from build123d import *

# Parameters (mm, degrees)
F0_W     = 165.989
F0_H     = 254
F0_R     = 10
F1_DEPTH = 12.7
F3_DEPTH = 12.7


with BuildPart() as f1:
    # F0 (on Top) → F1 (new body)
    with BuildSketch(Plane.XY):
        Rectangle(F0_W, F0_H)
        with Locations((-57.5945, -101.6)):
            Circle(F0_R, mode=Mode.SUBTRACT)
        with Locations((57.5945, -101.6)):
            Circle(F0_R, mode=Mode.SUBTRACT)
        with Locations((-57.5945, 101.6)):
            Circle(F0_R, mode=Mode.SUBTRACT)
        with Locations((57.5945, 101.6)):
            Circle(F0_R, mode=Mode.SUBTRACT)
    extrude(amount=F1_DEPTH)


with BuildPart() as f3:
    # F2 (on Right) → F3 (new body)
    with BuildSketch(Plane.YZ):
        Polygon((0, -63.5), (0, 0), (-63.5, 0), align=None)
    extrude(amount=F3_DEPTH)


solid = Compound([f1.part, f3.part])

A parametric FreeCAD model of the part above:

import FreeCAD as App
import Part
import Sketcher
from FreeCAD import Vector
Q = App.Units.Quantity

doc = App.newDocument("Part")
params = doc.addObject("Spreadsheet::Sheet", "Params")
for row, (alias, value) in enumerate([
    ("sketch1_height", "10 in"),
    ("sketch1_width", "6.535 in"),
    ("pad1_length", "0.5 in"),
    ("sketch2_width", "2.5 in"),
    ("pad2_length", "0.5 in"),
], start=1):
    params.set(f"A{row}", alias)
    params.set(f"B{row}", "=" + value)
    params.setAlias(f"B{row}", alias)

body = doc.addObject("PartDesign::Body", "Body")

# Sketch on XY plane
sketch1 = doc.addObject("Sketcher::SketchObject", "Sketch")
body.addObject(sketch1)
sketch1.AttachmentSupport = (doc.XY_Plane, [""])
sketch1.MapMode = "FlatFace"
sketch1.addGeometry([
    Part.LineSegment(Vector(-83, 127, 0), Vector(-83, -127, 0)),  # 0
    Part.LineSegment(Vector(-83, -127, 0), Vector(83, -127, 0)),  # 1
    Part.LineSegment(Vector(83, -127, 0), Vector(83, 127, 0)),  # 2
    Part.LineSegment(Vector(83, 127, 0), Vector(-83, 127, 0)),  # 3
    Part.Circle(Vector(-58, -102, 0), Vector(0, 0, 1), 10),  # 4
    Part.Circle(Vector(58, -102, 0), Vector(0, 0, 1), 10),  # 5
    Part.Circle(Vector(-58, 102, 0), Vector(0, 0, 1), 10),  # 6
    Part.Circle(Vector(58, 102, 0), Vector(0, 0, 1), 10),  # 7
], False)
sketch1.addConstraint([
    Sketcher.Constraint("Coincident", 0, 2, 1, 1),
    Sketcher.Constraint("Coincident", 1, 2, 2, 1),
    Sketcher.Constraint("Coincident", 2, 2, 3, 1),
    Sketcher.Constraint("Coincident", 3, 2, 0, 1),
    Sketcher.Constraint("Vertical", 0),
    Sketcher.Constraint("Horizontal", 1),
    Sketcher.Constraint("Vertical", 2),
    Sketcher.Constraint("Horizontal", 3),
    Sketcher.Constraint("Equal", 4, 5),
    Sketcher.Constraint("Equal", 5, 6),
    Sketcher.Constraint("Equal", 6, 7),
    Sketcher.Constraint("Symmetric", 5, 3, 6, 3, -1, 1),
    Sketcher.Constraint("Symmetric", 4, 3, 7, 3, -1, 1),
    Sketcher.Constraint("Symmetric", 0, 2, 2, 2, -1, 1),
    Sketcher.Constraint("Symmetric", 4, 3, 5, 3, -2),
    Sketcher.Constraint("DistanceY", 0, 2, 0, 1, Q("10 in")),
    Sketcher.Constraint("DistanceY", 4, 3, -1, 1, Q("4 in")),
    Sketcher.Constraint("DistanceX", 0, 2, 4, 3, Q("1 in")),
    Sketcher.Constraint("Diameter", 4, Q("20 mm")),
    Sketcher.Constraint("DistanceX", 1, 1, 1, 2, Q("6.535 in")),
])
sketch1.setExpression("Constraints[15]", "Params.sketch1_height")
sketch1.setExpression("Constraints[19]", "Params.sketch1_width")
pad1 = doc.addObject("PartDesign::Pad", "Pad")
body.addObject(pad1)
pad1.Profile = sketch1
pad1.setExpression("Length", "Params.pad1_length")
body2 = doc.addObject("PartDesign::Body", "Body001")

# Sketch on YZ plane
sketch2 = doc.addObject("Sketcher::SketchObject", "Sketch001")
body2.addObject(sketch2)
sketch2.AttachmentSupport = (doc.getObject("YZ_Plane001"), [""])
sketch2.MapMode = "FlatFace"
sketch2.addGeometry([
    Part.LineSegment(Vector(0, -64, 0), Vector(0, 0, 0)),
    Part.LineSegment(Vector(0, 0, 0), Vector(-64, 0, 0)),
    Part.LineSegment(Vector(-64, 0, 0), Vector(0, -64, 0)),
], False)
sketch2.addConstraint([
    Sketcher.Constraint("Coincident", 0, 2, 1, 1),
    Sketcher.Constraint("Coincident", 1, 2, 2, 1),
    Sketcher.Constraint("Coincident", 2, 2, 0, 1),
    Sketcher.Constraint("Vertical", 0),
    Sketcher.Constraint("Horizontal", 1),
    Sketcher.Constraint("Coincident", 0, 2, -1, 1),
    Sketcher.Constraint("Equal", 1, 0),
    Sketcher.Constraint("DistanceX", 1, 2, 1, 1, Q("2.5 in")),
])
sketch2.setExpression("Constraints[7]", "Params.sketch2_width")
pad2 = doc.addObject("PartDesign::Pad", "Pad001")
body2.addObject(pad2)
pad2.Profile = sketch2
pad2.setExpression("Length", "Params.pad2_length")

doc.recompute()
